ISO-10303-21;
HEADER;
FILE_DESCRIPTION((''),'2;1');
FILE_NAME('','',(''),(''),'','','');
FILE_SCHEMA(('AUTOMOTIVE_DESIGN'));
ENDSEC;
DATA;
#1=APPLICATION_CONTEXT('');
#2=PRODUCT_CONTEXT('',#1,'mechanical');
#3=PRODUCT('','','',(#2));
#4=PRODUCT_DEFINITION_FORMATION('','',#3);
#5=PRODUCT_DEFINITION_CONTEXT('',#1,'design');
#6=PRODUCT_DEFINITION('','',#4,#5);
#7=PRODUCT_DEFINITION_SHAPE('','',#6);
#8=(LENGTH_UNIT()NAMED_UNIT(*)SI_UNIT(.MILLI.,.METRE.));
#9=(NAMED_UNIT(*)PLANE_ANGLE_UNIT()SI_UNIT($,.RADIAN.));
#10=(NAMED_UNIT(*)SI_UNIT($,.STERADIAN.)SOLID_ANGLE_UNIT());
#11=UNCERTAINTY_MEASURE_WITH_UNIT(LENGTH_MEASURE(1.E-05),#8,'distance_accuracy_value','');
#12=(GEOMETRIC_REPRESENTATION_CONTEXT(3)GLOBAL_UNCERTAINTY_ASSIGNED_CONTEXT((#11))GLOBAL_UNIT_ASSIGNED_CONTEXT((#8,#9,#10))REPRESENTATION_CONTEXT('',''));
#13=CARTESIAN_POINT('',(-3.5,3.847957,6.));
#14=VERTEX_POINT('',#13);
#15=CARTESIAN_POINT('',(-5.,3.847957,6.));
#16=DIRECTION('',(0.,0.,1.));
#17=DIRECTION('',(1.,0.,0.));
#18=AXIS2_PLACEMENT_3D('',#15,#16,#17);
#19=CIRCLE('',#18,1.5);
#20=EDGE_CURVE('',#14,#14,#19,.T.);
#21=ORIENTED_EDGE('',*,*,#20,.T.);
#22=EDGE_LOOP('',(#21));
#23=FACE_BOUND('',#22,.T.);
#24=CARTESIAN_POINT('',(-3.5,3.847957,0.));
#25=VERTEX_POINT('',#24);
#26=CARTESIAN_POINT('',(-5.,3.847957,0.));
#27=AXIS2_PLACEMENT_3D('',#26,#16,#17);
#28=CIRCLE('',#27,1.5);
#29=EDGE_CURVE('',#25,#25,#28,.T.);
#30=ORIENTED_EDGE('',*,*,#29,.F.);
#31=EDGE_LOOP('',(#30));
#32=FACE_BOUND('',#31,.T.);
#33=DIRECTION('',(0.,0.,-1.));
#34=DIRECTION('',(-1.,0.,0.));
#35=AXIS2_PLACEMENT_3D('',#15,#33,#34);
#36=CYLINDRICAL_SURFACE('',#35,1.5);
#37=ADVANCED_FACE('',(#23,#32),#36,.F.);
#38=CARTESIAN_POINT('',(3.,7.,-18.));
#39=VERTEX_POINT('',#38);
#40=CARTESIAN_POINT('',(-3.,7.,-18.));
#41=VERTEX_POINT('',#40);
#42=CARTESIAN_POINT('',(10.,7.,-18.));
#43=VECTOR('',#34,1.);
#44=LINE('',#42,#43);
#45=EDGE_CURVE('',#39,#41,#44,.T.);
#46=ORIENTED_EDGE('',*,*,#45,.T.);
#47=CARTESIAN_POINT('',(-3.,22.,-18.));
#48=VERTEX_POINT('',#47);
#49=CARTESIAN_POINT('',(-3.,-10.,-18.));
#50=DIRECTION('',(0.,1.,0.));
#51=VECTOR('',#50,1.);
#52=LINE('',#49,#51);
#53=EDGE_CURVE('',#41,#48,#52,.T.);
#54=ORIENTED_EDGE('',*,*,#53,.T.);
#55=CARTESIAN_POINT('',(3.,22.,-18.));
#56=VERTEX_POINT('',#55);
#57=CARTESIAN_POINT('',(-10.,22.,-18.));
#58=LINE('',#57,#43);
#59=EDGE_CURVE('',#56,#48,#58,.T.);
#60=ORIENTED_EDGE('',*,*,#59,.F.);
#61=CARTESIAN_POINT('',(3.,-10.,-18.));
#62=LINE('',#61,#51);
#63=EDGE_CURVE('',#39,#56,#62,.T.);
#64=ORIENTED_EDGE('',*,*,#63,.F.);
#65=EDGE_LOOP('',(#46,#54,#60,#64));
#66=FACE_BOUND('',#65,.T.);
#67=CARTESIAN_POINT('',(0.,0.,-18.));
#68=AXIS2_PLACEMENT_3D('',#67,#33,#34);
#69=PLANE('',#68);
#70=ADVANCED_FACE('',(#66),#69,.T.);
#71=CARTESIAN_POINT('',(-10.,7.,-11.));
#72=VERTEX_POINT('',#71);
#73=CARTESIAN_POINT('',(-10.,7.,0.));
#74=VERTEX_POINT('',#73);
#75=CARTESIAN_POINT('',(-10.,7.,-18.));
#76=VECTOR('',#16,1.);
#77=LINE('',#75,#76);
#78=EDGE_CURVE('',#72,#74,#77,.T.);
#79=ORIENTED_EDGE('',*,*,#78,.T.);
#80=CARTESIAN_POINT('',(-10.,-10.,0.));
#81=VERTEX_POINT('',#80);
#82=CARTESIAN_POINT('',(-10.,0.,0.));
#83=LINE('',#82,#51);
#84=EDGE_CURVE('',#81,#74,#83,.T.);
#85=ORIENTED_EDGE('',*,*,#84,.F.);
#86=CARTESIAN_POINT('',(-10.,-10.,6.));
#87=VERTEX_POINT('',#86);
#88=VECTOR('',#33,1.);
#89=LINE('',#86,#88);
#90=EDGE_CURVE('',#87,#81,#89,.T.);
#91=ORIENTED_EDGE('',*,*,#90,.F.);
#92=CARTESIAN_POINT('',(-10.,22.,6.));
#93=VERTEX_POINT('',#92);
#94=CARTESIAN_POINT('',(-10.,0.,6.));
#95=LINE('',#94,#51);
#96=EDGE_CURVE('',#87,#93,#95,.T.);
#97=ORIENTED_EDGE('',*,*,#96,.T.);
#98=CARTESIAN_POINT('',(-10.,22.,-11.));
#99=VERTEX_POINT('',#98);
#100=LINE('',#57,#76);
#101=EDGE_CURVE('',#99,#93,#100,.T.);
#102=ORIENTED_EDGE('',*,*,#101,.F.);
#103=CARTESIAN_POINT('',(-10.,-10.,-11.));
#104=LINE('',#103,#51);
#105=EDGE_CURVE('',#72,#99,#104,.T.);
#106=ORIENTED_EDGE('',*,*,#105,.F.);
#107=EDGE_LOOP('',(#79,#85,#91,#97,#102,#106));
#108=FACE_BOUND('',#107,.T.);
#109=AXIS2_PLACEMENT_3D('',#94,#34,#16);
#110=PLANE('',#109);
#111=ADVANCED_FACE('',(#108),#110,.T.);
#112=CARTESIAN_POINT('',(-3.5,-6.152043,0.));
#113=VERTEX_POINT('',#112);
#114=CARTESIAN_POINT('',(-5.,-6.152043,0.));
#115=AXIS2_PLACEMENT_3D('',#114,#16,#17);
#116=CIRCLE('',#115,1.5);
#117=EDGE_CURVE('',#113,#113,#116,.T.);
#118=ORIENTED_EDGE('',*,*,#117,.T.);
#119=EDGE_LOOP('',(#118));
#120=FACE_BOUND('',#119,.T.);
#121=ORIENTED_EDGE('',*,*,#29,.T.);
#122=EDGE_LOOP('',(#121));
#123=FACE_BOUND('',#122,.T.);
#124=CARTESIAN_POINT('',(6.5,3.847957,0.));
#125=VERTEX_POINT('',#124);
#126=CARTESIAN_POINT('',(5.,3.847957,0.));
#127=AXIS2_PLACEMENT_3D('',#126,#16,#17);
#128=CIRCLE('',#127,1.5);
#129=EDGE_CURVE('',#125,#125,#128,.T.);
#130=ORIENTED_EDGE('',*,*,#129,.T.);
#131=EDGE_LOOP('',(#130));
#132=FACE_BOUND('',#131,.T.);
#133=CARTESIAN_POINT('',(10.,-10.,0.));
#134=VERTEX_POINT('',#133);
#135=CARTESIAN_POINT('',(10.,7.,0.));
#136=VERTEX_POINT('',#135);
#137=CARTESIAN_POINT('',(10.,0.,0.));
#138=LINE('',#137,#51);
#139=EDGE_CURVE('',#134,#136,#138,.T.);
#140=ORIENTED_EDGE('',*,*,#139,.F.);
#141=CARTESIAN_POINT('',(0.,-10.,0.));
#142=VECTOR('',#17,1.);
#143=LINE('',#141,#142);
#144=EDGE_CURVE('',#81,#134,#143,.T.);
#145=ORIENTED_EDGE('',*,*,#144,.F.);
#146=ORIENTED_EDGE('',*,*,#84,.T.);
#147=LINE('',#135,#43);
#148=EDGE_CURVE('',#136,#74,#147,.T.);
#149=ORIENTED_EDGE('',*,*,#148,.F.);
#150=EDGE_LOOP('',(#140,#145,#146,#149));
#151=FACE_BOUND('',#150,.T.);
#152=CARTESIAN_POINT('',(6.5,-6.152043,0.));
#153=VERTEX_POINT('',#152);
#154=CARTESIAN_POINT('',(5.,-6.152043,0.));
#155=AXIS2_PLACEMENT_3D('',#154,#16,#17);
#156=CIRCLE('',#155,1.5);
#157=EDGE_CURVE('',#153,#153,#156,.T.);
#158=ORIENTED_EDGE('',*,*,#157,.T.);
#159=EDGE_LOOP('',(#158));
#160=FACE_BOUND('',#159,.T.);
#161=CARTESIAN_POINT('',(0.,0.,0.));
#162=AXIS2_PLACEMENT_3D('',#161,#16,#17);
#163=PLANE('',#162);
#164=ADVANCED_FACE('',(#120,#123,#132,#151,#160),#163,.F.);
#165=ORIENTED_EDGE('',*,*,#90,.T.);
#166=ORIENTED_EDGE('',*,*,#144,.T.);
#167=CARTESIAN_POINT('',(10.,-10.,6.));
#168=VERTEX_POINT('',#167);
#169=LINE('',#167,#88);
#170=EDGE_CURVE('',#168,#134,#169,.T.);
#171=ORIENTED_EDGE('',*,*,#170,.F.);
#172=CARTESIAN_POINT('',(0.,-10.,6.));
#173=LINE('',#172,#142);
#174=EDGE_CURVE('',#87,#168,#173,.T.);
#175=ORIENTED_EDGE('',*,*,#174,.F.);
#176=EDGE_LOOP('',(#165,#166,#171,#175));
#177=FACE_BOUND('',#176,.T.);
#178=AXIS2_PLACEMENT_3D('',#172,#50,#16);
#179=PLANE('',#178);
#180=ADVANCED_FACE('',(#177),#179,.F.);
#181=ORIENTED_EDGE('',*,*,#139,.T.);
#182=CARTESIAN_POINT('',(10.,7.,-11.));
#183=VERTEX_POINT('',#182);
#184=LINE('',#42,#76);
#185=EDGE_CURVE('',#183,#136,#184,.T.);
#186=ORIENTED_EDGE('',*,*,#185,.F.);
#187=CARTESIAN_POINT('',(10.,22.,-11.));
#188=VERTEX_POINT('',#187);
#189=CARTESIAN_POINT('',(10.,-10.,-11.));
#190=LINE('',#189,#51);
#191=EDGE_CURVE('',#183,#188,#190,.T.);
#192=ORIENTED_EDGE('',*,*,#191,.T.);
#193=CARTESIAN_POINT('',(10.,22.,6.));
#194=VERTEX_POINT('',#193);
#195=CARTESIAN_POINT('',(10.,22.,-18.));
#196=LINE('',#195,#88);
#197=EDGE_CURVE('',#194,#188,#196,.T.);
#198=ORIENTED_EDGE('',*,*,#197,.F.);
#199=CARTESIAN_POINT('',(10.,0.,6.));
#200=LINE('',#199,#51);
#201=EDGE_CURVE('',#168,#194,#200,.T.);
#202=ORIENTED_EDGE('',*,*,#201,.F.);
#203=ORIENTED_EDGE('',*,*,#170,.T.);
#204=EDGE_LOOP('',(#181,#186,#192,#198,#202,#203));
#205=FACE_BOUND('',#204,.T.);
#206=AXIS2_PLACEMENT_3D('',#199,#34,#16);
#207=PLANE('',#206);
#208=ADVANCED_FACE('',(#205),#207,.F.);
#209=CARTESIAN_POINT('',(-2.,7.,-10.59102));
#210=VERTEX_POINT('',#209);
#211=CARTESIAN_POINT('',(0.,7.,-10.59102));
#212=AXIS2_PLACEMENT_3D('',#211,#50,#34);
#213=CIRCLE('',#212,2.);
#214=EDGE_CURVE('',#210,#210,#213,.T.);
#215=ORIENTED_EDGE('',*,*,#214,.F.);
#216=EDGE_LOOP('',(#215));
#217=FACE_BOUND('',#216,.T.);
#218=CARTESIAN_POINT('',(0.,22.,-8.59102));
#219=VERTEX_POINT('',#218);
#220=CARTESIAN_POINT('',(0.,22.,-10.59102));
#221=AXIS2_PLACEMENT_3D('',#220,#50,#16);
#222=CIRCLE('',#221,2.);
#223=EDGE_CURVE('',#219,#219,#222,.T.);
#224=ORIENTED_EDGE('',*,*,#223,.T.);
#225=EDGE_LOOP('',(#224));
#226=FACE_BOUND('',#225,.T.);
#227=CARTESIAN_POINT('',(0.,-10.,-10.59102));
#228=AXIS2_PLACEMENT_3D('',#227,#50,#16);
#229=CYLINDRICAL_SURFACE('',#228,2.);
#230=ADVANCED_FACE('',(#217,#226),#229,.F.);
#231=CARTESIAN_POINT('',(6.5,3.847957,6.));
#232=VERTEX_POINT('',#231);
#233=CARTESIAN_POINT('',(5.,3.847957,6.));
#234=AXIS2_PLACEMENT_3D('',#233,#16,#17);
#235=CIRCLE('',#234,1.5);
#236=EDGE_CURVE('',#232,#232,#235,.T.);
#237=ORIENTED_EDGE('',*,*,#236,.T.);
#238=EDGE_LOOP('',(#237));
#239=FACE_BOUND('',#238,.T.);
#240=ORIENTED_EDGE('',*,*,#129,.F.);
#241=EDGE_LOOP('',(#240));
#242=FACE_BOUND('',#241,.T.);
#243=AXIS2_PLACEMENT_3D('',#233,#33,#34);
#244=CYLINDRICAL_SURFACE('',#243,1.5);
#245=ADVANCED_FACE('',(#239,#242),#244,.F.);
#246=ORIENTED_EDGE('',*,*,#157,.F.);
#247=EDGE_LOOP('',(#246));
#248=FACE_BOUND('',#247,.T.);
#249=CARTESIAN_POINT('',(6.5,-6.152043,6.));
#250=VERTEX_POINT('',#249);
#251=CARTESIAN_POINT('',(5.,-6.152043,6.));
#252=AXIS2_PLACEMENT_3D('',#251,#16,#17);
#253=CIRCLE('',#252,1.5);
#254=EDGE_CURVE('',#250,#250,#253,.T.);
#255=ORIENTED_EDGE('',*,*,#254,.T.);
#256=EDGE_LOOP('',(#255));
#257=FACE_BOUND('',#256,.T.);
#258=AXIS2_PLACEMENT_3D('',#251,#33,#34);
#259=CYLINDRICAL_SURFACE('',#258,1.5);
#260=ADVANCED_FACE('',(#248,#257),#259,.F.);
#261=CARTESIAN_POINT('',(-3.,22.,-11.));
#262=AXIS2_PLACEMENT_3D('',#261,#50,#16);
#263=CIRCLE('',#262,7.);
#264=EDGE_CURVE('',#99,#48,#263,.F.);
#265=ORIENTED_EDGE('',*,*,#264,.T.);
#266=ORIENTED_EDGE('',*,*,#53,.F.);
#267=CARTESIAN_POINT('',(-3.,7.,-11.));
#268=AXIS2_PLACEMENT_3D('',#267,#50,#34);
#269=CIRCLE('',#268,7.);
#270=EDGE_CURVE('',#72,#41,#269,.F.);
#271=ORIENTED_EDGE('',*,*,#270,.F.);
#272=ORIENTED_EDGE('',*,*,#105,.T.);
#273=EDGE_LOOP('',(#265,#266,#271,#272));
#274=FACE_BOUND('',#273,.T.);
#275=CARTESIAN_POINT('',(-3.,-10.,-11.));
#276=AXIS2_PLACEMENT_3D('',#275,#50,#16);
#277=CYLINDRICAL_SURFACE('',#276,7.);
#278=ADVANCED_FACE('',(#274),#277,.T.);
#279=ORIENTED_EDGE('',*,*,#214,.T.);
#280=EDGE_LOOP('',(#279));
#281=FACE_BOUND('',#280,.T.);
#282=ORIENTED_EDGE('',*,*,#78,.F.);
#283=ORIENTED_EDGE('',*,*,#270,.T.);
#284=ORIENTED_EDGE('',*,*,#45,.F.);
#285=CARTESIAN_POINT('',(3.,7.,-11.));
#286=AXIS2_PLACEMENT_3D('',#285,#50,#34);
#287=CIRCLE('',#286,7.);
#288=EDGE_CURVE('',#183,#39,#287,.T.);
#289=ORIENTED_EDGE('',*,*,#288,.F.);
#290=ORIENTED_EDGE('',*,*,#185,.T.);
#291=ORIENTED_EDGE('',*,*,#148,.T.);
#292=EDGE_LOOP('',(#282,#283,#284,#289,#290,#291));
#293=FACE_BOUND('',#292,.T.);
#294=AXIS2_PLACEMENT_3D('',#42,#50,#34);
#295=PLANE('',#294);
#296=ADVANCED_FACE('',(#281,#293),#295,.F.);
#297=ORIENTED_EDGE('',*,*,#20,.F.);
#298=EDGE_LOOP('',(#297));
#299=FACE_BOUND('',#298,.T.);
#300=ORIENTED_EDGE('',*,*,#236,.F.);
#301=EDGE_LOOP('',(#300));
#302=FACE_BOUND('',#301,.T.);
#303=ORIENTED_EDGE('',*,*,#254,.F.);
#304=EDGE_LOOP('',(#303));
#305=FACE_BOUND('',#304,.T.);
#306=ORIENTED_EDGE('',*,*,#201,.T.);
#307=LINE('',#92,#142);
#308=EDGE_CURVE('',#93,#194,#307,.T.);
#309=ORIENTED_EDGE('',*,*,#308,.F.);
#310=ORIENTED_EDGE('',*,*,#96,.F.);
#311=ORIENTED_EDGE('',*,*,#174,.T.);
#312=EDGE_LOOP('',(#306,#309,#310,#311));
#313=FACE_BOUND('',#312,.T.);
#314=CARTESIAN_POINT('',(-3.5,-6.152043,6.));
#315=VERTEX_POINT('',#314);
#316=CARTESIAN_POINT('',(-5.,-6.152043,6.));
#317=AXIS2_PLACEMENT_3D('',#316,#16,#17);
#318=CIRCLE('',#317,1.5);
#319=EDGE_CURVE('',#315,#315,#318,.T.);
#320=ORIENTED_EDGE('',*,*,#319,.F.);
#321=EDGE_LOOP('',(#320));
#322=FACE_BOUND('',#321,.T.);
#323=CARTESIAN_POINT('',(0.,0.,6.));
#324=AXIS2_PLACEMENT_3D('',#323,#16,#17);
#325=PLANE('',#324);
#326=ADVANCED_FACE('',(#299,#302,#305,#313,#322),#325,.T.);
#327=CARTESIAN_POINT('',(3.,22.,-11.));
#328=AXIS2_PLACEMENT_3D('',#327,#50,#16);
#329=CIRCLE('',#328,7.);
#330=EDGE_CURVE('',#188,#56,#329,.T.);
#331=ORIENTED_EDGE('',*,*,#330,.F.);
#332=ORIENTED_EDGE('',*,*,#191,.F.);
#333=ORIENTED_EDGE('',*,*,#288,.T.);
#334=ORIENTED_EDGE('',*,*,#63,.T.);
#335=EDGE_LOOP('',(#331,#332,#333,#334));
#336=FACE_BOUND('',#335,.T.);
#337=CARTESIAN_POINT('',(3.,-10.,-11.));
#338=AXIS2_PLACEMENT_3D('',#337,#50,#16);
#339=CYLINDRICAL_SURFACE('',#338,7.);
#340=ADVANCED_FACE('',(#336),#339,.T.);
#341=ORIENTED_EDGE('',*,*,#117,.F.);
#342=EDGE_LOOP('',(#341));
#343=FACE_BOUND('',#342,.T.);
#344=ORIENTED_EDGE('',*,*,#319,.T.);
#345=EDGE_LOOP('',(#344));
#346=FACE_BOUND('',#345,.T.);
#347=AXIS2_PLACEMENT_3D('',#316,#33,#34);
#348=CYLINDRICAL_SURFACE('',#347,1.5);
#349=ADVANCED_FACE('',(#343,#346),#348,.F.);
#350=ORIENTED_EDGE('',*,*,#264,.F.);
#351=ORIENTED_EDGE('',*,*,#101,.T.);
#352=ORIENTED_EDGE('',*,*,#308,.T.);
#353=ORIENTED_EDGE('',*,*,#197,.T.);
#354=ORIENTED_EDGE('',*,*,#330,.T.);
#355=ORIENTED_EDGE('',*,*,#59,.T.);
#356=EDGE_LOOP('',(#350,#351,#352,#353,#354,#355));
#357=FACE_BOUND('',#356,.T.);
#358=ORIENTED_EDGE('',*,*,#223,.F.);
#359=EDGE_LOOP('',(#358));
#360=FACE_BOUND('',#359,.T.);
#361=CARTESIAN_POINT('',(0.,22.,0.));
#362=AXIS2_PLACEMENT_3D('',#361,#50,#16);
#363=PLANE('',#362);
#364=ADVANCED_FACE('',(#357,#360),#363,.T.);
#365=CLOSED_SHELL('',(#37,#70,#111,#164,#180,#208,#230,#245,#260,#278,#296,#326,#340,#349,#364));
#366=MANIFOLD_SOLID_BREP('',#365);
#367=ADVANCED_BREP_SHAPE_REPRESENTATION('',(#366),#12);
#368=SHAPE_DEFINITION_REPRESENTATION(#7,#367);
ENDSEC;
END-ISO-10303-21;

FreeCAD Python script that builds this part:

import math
import FreeCAD as App
import Part
import Sketcher

V = App.Vector
Q = App.Units.Quantity


def add_polygon(sketch, points):
    """Adds a closed chain of lines whose ends are joined by coincident constraints."""
    first, n = sketch.GeometryCount, len(points)
    for a, b in zip(points, points[1:] + points[:1]):
        sketch.addGeometry(Part.LineSegment(App.Vector(*a, 0), App.Vector(*b, 0)), False)
    for i in range(n):
        sketch.addConstraint(Sketcher.Constraint("Coincident", first + i, 2, first + (i + 1) % n, 1))

doc = App.newDocument("Part")
body = doc.addObject("PartDesign::Body", "Body")

# Sketch on XY plane
sketch1 = body.newObject("Sketcher::SketchObject", "Sketch")
sketch1.AttachmentSupport = (doc.getObject("XY_Plane"), [""])
sketch1.MapMode = "FlatFace"
add_polygon(sketch1, [(-10, 10), (-10, -10), (10, -10), (10, 10)])  # lines 0-3
sketch1.addGeometry(Part.Circle(V(-5, -6.2, 0), V(0, 0, 1), 1.5), False)  # 4
sketch1.addGeometry(Part.Circle(V(5, -6.2, 0), V(0, 0, 1), 1.5), False)  # 5
sketch1.addGeometry(Part.Circle(V(-5, 3.8, 0), V(0, 0, 1), 1.5), False)  # 6
sketch1.addGeometry(Part.Circle(V(5, 3.8, 0), V(0, 0, 1), 1.5), False)  # 7
sketch1.addConstraint([
    Sketcher.Constraint("Vertical", 0),
    Sketcher.Constraint("Horizontal", 1),
    Sketcher.Constraint("Vertical", 2),
    Sketcher.Constraint("Horizontal", 3),
    Sketcher.Constraint("Equal", 4, 5),
    Sketcher.Constraint("Equal", 5, 6),
    Sketcher.Constraint("Equal", 6, 7),
    Sketcher.Constraint("Symmetric", 0, 2, 2, 2, -1, 1),
    Sketcher.Constraint("Symmetric", 4, 3, 5, 3, -2),
    Sketcher.Constraint("Symmetric", 6, 3, 7, 3, -2),
    Sketcher.Constraint("Vertical", 4, 3, 6, 3),
    Sketcher.Constraint("Equal", 3, 0),
    Sketcher.Constraint("Diameter", 4, Q("3 mm")),
    Sketcher.Constraint("DistanceX", 1, 1, 1, 2, Q("20 mm")),
    Sketcher.Constraint("DistanceX", 4, 3, -1, 1, Q("5 mm")),
    Sketcher.Constraint("DistanceY", 4, 3, 6, 3, Q("10 mm")),
    Sketcher.Constraint("DistanceY", 4, 3, -1, 1, Q("6.152043 mm")),
])
pad1 = body.newObject("PartDesign::Pad", "Pad")
pad1.Profile = sketch1
pad1.Length = 6

# Sketch on XY plane
sketch2 = body.newObject("Sketcher::SketchObject", "Sketch001")
sketch2.AttachmentSupport = (doc.getObject("XY_Plane"), [""])
sketch2.MapMode = "FlatFace"
add_polygon(sketch2, [(10, 10), (10, 7), (-10, 7), (-10, 10)])  # lines 0-3
sketch2.addConstraint([
    Sketcher.Constraint("Vertical", 0),
    Sketcher.Constraint("Horizontal", 1),
    Sketcher.Constraint("Vertical", 2),
    Sketcher.Constraint("Horizontal", 3),
    Sketcher.Constraint("DistanceX", 1, 2, 1, 1, Q("20 mm")),
    Sketcher.Constraint("DistanceY", 0, 2, 0, 1, Q("3 mm")),
    Sketcher.Constraint("DistanceX", -1, 1, 0, 2, Q("10 mm")),
    Sketcher.Constraint("DistanceY", -1, 1, 0, 2, Q("7 mm")),
])
pad2 = body.newObject("PartDesign::Pad", "Pad001")
pad2.Profile = sketch2
pad2.Length = 18
pad2.Reversed = True

# Sketch on XZ plane
sketch3 = body.newObject("Sketcher::SketchObject", "Sketch002")
sketch3.AttachmentSupport = (doc.getObject("XZ_Plane"), [""])
sketch3.MapMode = "FlatFace"
sketch3.AttachmentOffset = App.Placement(V(0, 0, -10), App.Rotation())
add_polygon(sketch3, [(-10, -18), (-10, 6), (10, 6), (10, -18)])  # lines 0-3
sketch3.addConstraint([
    Sketcher.Constraint("Vertical", 0),
    Sketcher.Constraint("Horizontal", 1),
    Sketcher.Constraint("Vertical", 2),
    Sketcher.Constraint("Horizontal", 3),
    Sketcher.Constraint("DistanceX", 1, 1, 1, 2, Q("20 mm")),
    Sketcher.Constraint("DistanceY", 0, 1, 0, 2, Q("24 mm")),
    Sketcher.Constraint("DistanceX", 0, 2, -1, 1, Q("10 mm")),
    Sketcher.Constraint("DistanceY", -1, 1, 0, 2, Q("6 mm")),
])
pad3 = body.newObject("PartDesign::Pad", "Pad002")
pad3.Profile = sketch3
pad3.Length = 12
pad3.Reversed = True

# Sketch on XZ plane
sketch4 = body.newObject("Sketcher::SketchObject", "Sketch003")
sketch4.AttachmentSupport = (doc.getObject("XZ_Plane"), [""])
sketch4.MapMode = "FlatFace"
sketch4.AttachmentOffset = App.Placement(V(0, 0, -22), App.Rotation())
sketch4.addGeometry([
    Part.LineSegment(V(-10, -18, 0), V(-10, -11, 0)),  # 0
    Part.ArcOfCircle(Part.Circle(V(-3, -11, 0), V(0, 0, 1), 7), math.radians(-180), math.radians(-90)),  # 1
    Part.LineSegment(V(-3, -18, 0), V(-10, -18, 0)),  # 2
    Part.ArcOfCircle(Part.Circle(V(0, -10.6, 0), V(0, 0, 1), 2), math.radians(90), math.radians(270)),  # 3
    Part.ArcOfCircle(Part.Circle(V(0, -10.6, 0), V(0, 0, 1), 2), math.radians(0), math.radians(90)),  # 4
    Part.ArcOfCircle(Part.Circle(V(0, -10.6, 0), V(0, 0, 1), 2), math.radians(-90), math.radians(0)),  # 5
    Part.ArcOfCircle(Part.Circle(V(3, -11, 0), V(0, 0, 1), 7), math.radians(-90), math.radians(0)),  # 6
    Part.LineSegment(V(10, -11, 0), V(10, -18, 0)),  # 7
    Part.LineSegment(V(10, -18, 0), V(3, -18, 0)),  # 8
], False)
sketch4.addConstraint([
    Sketcher.Constraint("Tangent", 0, 2, 1, 1),
    Sketcher.Constraint("Tangent", 1, 2, 2, 1),
    Sketcher.Constraint("Coincident", 2, 2, 0, 1),
    Sketcher.Constraint("Tangent", 3, 1, 4, 2),
    Sketcher.Constraint("Tangent", 4, 1, 5, 2),
    Sketcher.Constraint("Tangent", 5, 1, 3, 2),
    Sketcher.Constraint("Tangent", 6, 2, 7, 1),
    Sketcher.Constraint("Coincident", 7, 2, 8, 1),
    Sketcher.Constraint("Tangent", 8, 2, 6, 1),
    Sketcher.Constraint("Vertical", 0),
    Sketcher.Constraint("Horizontal", 2),
    Sketcher.Constraint("Vertical", 7),
    Sketcher.Constraint("Horizontal", 8),
    Sketcher.Constraint("Equal", 1, 6),
    Sketcher.Constraint("Symmetric", 1, 3, 6, 3, -2),
    Sketcher.Constraint("PointOnObject", 3, 3, -2),
    Sketcher.Constraint("PointOnObject", 3, 1, -2),
    Sketcher.Constraint("PointOnObject", 5, 1, -2),
    Sketcher.Constraint("Horizontal", 5, 3, 4, 1),
    Sketcher.Constraint("Radius", 1, Q("7 mm")),
    Sketcher.Constraint("Radius", 3, Q("2 mm")),
    Sketcher.Constraint("DistanceX", 1, 3, -1, 1, Q("3 mm")),
    Sketcher.Constraint("DistanceY", 1, 3, -1, 1, Q("11 mm")),
    Sketcher.Constraint("DistanceY", 3, 3, -1, 1, Q("10.59102 mm")),
])
pocket1 = body.newObject("PartDesign::Pocket", "Pocket")
pocket1.Profile = sketch4
pocket1.Type = "ThroughAll"
pocket1.Reversed = True

doc.recompute()
